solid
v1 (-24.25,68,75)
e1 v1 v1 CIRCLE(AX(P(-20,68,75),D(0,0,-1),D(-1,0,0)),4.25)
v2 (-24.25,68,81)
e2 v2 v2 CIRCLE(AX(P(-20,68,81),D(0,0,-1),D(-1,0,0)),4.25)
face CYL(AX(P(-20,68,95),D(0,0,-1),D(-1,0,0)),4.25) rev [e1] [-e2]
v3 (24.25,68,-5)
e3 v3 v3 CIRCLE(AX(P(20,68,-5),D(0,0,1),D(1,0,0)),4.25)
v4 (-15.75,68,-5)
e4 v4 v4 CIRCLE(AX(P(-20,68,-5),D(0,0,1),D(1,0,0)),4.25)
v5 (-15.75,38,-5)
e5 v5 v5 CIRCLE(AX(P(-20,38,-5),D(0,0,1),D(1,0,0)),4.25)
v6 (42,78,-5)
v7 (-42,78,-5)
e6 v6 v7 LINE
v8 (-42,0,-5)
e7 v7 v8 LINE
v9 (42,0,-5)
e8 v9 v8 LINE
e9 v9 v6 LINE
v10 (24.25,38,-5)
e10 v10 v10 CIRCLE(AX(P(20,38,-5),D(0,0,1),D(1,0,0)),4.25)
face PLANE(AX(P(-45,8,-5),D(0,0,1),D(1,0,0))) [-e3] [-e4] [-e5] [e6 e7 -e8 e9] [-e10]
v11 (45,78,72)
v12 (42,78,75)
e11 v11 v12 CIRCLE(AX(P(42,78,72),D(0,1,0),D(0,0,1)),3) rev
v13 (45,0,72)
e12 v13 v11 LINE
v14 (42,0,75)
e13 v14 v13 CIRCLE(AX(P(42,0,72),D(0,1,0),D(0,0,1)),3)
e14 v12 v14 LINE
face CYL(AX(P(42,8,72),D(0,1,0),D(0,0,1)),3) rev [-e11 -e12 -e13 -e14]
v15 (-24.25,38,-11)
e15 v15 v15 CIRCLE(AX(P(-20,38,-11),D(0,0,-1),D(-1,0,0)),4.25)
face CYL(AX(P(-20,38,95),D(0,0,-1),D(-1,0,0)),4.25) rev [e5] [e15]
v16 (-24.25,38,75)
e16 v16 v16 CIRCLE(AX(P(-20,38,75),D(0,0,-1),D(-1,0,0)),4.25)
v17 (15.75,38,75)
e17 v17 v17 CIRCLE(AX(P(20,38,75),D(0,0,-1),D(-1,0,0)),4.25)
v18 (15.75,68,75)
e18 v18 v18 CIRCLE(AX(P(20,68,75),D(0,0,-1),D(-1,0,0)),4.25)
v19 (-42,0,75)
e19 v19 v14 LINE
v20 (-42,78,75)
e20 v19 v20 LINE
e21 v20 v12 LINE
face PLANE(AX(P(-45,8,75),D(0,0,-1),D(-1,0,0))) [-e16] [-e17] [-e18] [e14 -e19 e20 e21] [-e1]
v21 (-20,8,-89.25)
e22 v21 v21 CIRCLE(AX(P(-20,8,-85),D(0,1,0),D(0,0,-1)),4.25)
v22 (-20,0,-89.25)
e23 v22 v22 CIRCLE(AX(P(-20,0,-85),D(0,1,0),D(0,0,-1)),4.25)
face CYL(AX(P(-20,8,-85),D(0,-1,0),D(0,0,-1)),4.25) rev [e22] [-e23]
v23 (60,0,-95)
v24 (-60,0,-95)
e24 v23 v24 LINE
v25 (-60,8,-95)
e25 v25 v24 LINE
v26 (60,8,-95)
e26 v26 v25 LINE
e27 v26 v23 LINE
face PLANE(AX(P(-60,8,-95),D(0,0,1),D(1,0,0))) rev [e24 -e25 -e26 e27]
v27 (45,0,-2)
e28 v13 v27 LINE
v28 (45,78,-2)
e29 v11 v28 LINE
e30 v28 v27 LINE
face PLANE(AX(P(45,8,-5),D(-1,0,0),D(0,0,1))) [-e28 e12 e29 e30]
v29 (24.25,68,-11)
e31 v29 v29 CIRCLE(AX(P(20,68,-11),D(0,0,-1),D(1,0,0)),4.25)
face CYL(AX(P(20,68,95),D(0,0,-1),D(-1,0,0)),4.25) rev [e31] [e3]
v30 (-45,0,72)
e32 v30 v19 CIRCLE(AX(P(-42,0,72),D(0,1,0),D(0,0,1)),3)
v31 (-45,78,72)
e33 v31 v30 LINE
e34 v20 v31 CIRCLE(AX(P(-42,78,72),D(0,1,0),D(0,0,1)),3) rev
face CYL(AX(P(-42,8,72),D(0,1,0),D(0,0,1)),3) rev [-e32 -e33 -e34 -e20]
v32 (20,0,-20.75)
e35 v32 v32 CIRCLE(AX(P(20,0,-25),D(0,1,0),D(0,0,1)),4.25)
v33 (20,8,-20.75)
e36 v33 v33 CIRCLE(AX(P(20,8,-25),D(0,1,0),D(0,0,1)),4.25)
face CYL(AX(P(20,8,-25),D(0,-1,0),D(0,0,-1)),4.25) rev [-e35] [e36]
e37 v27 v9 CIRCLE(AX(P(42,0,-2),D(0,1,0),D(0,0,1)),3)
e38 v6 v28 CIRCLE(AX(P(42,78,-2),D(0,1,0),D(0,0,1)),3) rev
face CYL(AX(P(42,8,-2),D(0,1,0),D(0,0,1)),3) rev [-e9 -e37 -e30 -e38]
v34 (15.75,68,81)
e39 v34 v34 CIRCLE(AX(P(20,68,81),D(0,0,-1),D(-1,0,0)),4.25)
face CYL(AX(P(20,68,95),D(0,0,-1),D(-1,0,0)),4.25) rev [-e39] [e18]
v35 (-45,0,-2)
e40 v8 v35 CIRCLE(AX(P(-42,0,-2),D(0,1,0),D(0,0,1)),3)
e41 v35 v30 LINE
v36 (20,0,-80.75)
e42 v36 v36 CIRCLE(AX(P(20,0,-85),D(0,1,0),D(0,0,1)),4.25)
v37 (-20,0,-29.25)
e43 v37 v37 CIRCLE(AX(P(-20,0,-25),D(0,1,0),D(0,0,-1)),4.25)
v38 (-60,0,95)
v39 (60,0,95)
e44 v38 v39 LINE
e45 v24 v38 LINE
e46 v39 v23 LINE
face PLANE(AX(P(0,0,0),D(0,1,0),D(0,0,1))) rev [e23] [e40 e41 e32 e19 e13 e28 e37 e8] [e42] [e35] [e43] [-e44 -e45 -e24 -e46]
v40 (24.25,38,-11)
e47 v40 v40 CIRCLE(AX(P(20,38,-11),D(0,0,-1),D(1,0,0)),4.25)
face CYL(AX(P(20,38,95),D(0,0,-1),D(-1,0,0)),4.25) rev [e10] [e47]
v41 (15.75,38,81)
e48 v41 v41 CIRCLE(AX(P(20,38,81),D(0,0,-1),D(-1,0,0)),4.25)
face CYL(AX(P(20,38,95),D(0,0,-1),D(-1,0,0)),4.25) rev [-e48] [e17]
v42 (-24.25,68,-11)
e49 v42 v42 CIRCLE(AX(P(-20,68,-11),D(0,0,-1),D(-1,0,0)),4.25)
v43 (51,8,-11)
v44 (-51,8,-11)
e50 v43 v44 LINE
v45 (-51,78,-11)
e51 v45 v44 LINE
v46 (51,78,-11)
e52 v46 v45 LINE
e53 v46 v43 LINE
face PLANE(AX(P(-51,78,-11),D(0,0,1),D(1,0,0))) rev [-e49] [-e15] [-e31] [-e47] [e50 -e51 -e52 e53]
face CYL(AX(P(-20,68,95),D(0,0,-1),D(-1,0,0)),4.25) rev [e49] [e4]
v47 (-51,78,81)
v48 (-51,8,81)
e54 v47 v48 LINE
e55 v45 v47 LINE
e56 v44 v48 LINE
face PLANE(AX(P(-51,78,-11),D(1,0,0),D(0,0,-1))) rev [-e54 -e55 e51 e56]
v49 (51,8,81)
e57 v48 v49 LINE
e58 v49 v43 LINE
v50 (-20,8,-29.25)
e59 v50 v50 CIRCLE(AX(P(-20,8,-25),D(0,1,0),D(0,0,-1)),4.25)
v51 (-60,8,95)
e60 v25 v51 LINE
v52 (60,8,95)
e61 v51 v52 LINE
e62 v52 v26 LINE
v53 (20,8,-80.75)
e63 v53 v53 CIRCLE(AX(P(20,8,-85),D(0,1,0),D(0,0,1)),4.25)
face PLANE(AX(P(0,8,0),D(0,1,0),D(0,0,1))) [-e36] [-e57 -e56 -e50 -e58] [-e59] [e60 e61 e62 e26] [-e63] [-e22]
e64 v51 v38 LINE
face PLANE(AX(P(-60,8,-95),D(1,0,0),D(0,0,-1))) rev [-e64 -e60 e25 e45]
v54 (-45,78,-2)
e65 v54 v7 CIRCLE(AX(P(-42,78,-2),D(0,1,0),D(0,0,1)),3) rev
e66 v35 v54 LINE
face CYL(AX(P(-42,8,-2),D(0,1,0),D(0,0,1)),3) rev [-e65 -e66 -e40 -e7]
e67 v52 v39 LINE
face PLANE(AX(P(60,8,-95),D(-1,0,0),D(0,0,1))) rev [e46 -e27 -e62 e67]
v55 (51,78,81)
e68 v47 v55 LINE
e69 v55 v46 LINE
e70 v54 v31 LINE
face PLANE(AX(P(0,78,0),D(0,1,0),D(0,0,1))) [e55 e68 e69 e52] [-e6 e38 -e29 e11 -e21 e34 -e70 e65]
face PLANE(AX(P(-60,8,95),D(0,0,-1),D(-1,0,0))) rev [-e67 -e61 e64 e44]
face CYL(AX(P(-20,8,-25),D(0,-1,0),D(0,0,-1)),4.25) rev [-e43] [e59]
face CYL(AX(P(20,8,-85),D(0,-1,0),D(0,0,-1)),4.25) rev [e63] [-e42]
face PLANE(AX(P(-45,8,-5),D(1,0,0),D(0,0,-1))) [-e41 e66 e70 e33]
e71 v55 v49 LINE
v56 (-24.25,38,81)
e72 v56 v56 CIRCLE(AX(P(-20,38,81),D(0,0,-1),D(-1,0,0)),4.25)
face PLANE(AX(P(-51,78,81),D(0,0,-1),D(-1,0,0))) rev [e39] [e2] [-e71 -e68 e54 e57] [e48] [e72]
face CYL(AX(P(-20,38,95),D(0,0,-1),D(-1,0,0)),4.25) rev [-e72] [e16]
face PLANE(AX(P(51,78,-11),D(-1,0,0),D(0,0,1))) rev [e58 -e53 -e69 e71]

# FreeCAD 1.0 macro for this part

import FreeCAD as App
import Part
import Sketcher
from FreeCAD import Vector
Q = App.Units.Quantity


def edges_at(feature, points):
    """Names of the edges that pass closest to the given points."""
    edges = feature.Shape.Edges
    near = lambda p: min(range(len(edges)), key=lambda i: edges[i].distToShape(Part.Vertex(*p))[0])
    return sorted({f"Edge{near(p) + 1}" for p in points})

doc = App.newDocument("Part")
body = doc.addObject("PartDesign::Body", "Body")

# Sketch on XZ plane
sketch1 = doc.addObject("Sketcher::SketchObject", "Sketch")
body.addObject(sketch1)
sketch1.AttachmentSupport = (doc.XZ_Plane, [""])
sketch1.MapMode = "FlatFace"
sketch1.addGeometry(Part.LineSegment(Vector(-60, -95, 0), Vector(-60, 95, 0)), False)
sketch1.addGeometry(Part.LineSegment(Vector(-60, 95, 0), Vector(60, 95, 0)), False)
sketch1.addGeometry(Part.LineSegment(Vector(60, 95, 0), Vector(60, -95, 0)), False)
sketch1.addGeometry(Part.LineSegment(Vector(60, -95, 0), Vector(-60, -95, 0)), False)
sketch1.addGeometry(Part.LineSegment(Vector(45, 75, 0), Vector(-45, 75, 0)), False)
sketch1.addGeometry(Part.LineSegment(Vector(-45, 75, 0), Vector(-45, -5, 0)), False)
sketch1.addGeometry(Part.LineSegment(Vector(-45, -5, 0), Vector(45, -5, 0)), False)
sketch1.addGeometry(Part.LineSegment(Vector(45, -5, 0), Vector(45, 75, 0)), False)
sketch1.addGeometry(Part.Circle(Vector(-20, -25, 0), Vector(0, 0, 1), 4.2), False)
sketch1.addGeometry(Part.Circle(Vector(-20, -85, 0), Vector(0, 0, 1), 4.2), False)
sketch1.addGeometry(Part.Circle(Vector(20, -25, 0), Vector(0, 0, 1), 4.2), False)
sketch1.addGeometry(Part.Circle(Vector(20, -85, 0), Vector(0, 0, 1), 4.2), False)
sketch1.addConstraint(Sketcher.Constraint("Coincident", 0, 2, 1, 1))
sketch1.addConstraint(Sketcher.Constraint("Coincident", 1, 2, 2, 1))
sketch1.addConstraint(Sketcher.Constraint("Coincident", 2, 2, 3, 1))
sketch1.addConstraint(Sketcher.Constraint("Coincident", 3, 2, 0, 1))
sketch1.addConstraint(Sketcher.Constraint("Coincident", 4, 2, 5, 1))
sketch1.addConstraint(Sketcher.Constraint("Coincident", 5, 2, 6, 1))
sketch1.addConstraint(Sketcher.Constraint("Coincident", 6, 2, 7, 1))
sketch1.addConstraint(Sketcher.Constraint("Coincident", 7, 2, 4, 1))
sketch1.addConstraint(Sketcher.Constraint("Vertical", 0))
sketch1.addConstraint(Sketcher.Constraint("Horizontal", 1))
sketch1.addConstraint(Sketcher.Constraint("Vertical", 2))
sketch1.addConstraint(Sketcher.Constraint("Horizontal", 3))
sketch1.addConstraint(Sketcher.Constraint("Horizontal", 4))
sketch1.addConstraint(Sketcher.Constraint("Vertical", 5))
sketch1.addConstraint(Sketcher.Constraint("Horizontal", 6))
sketch1.addConstraint(Sketcher.Constraint("Vertical", 7))
sketch1.addConstraint(Sketcher.Constraint("Equal", 8, 9))
sketch1.addConstraint(Sketcher.Constraint("Equal", 9, 10))
sketch1.addConstraint(Sketcher.Constraint("Equal", 10, 11))
sketch1.addConstraint(Sketcher.Constraint("Symmetric", 0, 2, 2, 2, -1, 1))
sketch1.addConstraint(Sketcher.Constraint("Symmetric", 8, 3, 10, 3, -2))
sketch1.addConstraint(Sketcher.Constraint("Symmetric", 9, 3, 11, 3, -2))
sketch1.addConstraint(Sketcher.Constraint("Vertical", 8, 3, 9, 3))
sketch1.addConstraint(Sketcher.Constraint("Diameter", 8, Q("8.5 mm")))
sketch1.addConstraint(Sketcher.Constraint("DistanceX", 1, 1, 1, 2, Q("120 mm")))
sketch1.addConstraint(Sketcher.Constraint("DistanceX", 4, 2, 4, 1, Q("90 mm")))
sketch1.addConstraint(Sketcher.Constraint("DistanceY", 0, 1, 0, 2, Q("190 mm")))
sketch1.addConstraint(Sketcher.Constraint("DistanceY", 5, 2, 5, 1, Q("80 mm")))
sketch1.addConstraint(Sketcher.Constraint("DistanceX", 8, 3, -1, 1, Q("20 mm")))
sketch1.addConstraint(Sketcher.Constraint("DistanceY", 8, 3, -1, 1, Q("25 mm")))
sketch1.addConstraint(Sketcher.Constraint("DistanceY", 9, 3, -1, 1, Q("85 mm")))
sketch1.addConstraint(Sketcher.Constraint("DistanceX", 4, 2, -1, 1, Q("45 mm")))
sketch1.addConstraint(Sketcher.Constraint("DistanceY", -1, 1, 4, 2, Q("75 mm")))
pad1 = doc.addObject("PartDesign::Pad", "Pad")
body.addObject(pad1)
pad1.Profile = sketch1
pad1.Length = 8
pad1.Reversed = True

# Sketch on XZ plane
sketch2 = doc.addObject("Sketcher::SketchObject", "Sketch001")
body.addObject(sketch2)
sketch2.AttachmentSupport = (doc.XZ_Plane, [""])
sketch2.MapMode = "FlatFace"
sketch2.AttachmentOffset = App.Placement(Vector(0, 0, -8), App.Rotation())
sketch2.addGeometry(Part.LineSegment(Vector(-51, -11, 0), Vector(-51, 81, 0)), False)
sketch2.addGeometry(Part.LineSegment(Vector(-51, 81, 0), Vector(51, 81, 0)), False)
sketch2.addGeometry(Part.LineSegment(Vector(51, 81, 0), Vector(51, -11, 0)), False)
sketch2.addGeometry(Part.LineSegment(Vector(51, -11, 0), Vector(-51, -11, 0)), False)
sketch2.addGeometry(Part.LineSegment(Vector(45, 75, 0), Vector(-45, 75, 0)), False)
sketch2.addGeometry(Part.LineSegment(Vector(-45, 75, 0), Vector(-45, -5, 0)), False)
sketch2.addGeometry(Part.LineSegment(Vector(-45, -5, 0), Vector(45, -5, 0)), False)
sketch2.addGeometry(Part.LineSegment(Vector(45, -5, 0), Vector(45, 75, 0)), False)
sketch2.addConstraint(Sketcher.Constraint("Coincident", 0, 2, 1, 1))
sketch2.addConstraint(Sketcher.Constraint("Coincident", 1, 2, 2, 1))
sketch2.addConstraint(Sketcher.Constraint("Coincident", 2, 2, 3, 1))
sketch2.addConstraint(Sketcher.Constraint("Coincident", 3, 2, 0, 1))
sketch2.addConstraint(Sketcher.Constraint("Coincident", 4, 2, 5, 1))
sketch2.addConstraint(Sketcher.Constraint("Coincident", 5, 2, 6, 1))
sketch2.addConstraint(Sketcher.Constraint("Coincident", 6, 2, 7, 1))
sketch2.addConstraint(Sketcher.Constraint("Coincident", 7, 2, 4, 1))
sketch2.addConstraint(Sketcher.Constraint("Vertical", 0))
sketch2.addConstraint(Sketcher.Constraint("Horizontal", 1))
sketch2.addConstraint(Sketcher.Constraint("Vertical", 2))
sketch2.addConstraint(Sketcher.Constraint("Horizontal", 3))
sketch2.addConstraint(Sketcher.Constraint("Horizontal", 4))
sketch2.addConstraint(Sketcher.Constraint("Vertical", 5))
sketch2.addConstraint(Sketcher.Constraint("Horizontal", 6))
sketch2.addConstraint(Sketcher.Constraint("Vertical", 7))
sketch2.addConstraint(Sketcher.Constraint("DistanceX", 1, 1, 1, 2, Q("102 mm")))
sketch2.addConstraint(Sketcher.Constraint("DistanceX", 4, 2, 4, 1, Q("90 mm")))
sketch2.addConstraint(Sketcher.Constraint("DistanceY", 0, 1, 0, 2, Q("92 mm")))
sketch2.addConstraint(Sketcher.Constraint("DistanceY", 5, 2, 5, 1, Q("80 mm")))
sketch2.addConstraint(Sketcher.Constraint("DistanceX", 0, 2, -1, 1, Q("51 mm")))
sketch2.addConstraint(Sketcher.Constraint("DistanceY", -1, 1, 0, 2, Q("81 mm")))
sketch2.addConstraint(Sketcher.Constraint("DistanceX", 4, 2, -1, 1, Q("45 mm")))
sketch2.addConstraint(Sketcher.Constraint("DistanceY", -1, 1, 4, 2, Q("75 mm")))
pad2 = doc.addObject("PartDesign::Pad", "Pad001")
body.addObject(pad2)
pad2.Profile = sketch2
pad2.Length = 70
pad2.Reversed = True

# Sketch on XY plane
sketch3 = doc.addObject("Sketcher::SketchObject", "Sketch002")
body.addObject(sketch3)
sketch3.AttachmentSupport = (doc.XY_Plane, [""])
sketch3.MapMode = "FlatFace"
sketch3.AttachmentOffset = App.Placement(Vector(0, 0, -11), App.Rotation())
sketch3.addGeometry(Part.Circle(Vector(-20, 68, 0), Vector(0, 0, 1), 4.2), False)
sketch3.addGeometry(Part.Circle(Vector(-20, 38, 0), Vector(0, 0, 1), 4.2), False)
sketch3.addGeometry(Part.Circle(Vector(20, 38, 0), Vector(0, 0, 1), 4.2), False)
sketch3.addGeometry(Part.Circle(Vector(20, 68, 0), Vector(0, 0, 1), 4.2), False)
sketch3.addConstraint(Sketcher.Constraint("Equal", 0, 1))
sketch3.addConstraint(Sketcher.Constraint("Equal", 1, 2))
sketch3.addConstraint(Sketcher.Constraint("Equal", 2, 3))
sketch3.addConstraint(Sketcher.Constraint("Symmetric", 1, 3, 2, 3, -2))
sketch3.addConstraint(Sketcher.Constraint("Symmetric", 0, 3, 3, 3, -2))
sketch3.addConstraint(Sketcher.Constraint("Vertical", 0, 3, 1, 3))
sketch3.addConstraint(Sketcher.Constraint("Diameter", 0, Q("8.5 mm")))
sketch3.addConstraint(Sketcher.Constraint("DistanceX", 0, 3, -1, 1, Q("20 mm")))
sketch3.addConstraint(Sketcher.Constraint("DistanceY", -1, 1, 0, 3, Q("68 mm")))
sketch3.addConstraint(Sketcher.Constraint("DistanceY", -1, 1, 1, 3, Q("38 mm")))
pocket1 = doc.addObject("PartDesign::Pocket", "Pocket")
body.addObject(pocket1)
pocket1.Profile = sketch3
pocket1.Type = "ThroughAll"
pocket1.Reversed = True
doc.recompute()

fillet = doc.addObject("PartDesign::Fillet", "Fillet")
body.addObject(fillet)
fillet.Base = (pocket1, edges_at(pocket1, [
    (-45, 39, -5),
    (-45, 39, 75),
    (45, 39, 75),
    (45, 39, -5),
]))
fillet.Radius = 3

doc.recompute()
